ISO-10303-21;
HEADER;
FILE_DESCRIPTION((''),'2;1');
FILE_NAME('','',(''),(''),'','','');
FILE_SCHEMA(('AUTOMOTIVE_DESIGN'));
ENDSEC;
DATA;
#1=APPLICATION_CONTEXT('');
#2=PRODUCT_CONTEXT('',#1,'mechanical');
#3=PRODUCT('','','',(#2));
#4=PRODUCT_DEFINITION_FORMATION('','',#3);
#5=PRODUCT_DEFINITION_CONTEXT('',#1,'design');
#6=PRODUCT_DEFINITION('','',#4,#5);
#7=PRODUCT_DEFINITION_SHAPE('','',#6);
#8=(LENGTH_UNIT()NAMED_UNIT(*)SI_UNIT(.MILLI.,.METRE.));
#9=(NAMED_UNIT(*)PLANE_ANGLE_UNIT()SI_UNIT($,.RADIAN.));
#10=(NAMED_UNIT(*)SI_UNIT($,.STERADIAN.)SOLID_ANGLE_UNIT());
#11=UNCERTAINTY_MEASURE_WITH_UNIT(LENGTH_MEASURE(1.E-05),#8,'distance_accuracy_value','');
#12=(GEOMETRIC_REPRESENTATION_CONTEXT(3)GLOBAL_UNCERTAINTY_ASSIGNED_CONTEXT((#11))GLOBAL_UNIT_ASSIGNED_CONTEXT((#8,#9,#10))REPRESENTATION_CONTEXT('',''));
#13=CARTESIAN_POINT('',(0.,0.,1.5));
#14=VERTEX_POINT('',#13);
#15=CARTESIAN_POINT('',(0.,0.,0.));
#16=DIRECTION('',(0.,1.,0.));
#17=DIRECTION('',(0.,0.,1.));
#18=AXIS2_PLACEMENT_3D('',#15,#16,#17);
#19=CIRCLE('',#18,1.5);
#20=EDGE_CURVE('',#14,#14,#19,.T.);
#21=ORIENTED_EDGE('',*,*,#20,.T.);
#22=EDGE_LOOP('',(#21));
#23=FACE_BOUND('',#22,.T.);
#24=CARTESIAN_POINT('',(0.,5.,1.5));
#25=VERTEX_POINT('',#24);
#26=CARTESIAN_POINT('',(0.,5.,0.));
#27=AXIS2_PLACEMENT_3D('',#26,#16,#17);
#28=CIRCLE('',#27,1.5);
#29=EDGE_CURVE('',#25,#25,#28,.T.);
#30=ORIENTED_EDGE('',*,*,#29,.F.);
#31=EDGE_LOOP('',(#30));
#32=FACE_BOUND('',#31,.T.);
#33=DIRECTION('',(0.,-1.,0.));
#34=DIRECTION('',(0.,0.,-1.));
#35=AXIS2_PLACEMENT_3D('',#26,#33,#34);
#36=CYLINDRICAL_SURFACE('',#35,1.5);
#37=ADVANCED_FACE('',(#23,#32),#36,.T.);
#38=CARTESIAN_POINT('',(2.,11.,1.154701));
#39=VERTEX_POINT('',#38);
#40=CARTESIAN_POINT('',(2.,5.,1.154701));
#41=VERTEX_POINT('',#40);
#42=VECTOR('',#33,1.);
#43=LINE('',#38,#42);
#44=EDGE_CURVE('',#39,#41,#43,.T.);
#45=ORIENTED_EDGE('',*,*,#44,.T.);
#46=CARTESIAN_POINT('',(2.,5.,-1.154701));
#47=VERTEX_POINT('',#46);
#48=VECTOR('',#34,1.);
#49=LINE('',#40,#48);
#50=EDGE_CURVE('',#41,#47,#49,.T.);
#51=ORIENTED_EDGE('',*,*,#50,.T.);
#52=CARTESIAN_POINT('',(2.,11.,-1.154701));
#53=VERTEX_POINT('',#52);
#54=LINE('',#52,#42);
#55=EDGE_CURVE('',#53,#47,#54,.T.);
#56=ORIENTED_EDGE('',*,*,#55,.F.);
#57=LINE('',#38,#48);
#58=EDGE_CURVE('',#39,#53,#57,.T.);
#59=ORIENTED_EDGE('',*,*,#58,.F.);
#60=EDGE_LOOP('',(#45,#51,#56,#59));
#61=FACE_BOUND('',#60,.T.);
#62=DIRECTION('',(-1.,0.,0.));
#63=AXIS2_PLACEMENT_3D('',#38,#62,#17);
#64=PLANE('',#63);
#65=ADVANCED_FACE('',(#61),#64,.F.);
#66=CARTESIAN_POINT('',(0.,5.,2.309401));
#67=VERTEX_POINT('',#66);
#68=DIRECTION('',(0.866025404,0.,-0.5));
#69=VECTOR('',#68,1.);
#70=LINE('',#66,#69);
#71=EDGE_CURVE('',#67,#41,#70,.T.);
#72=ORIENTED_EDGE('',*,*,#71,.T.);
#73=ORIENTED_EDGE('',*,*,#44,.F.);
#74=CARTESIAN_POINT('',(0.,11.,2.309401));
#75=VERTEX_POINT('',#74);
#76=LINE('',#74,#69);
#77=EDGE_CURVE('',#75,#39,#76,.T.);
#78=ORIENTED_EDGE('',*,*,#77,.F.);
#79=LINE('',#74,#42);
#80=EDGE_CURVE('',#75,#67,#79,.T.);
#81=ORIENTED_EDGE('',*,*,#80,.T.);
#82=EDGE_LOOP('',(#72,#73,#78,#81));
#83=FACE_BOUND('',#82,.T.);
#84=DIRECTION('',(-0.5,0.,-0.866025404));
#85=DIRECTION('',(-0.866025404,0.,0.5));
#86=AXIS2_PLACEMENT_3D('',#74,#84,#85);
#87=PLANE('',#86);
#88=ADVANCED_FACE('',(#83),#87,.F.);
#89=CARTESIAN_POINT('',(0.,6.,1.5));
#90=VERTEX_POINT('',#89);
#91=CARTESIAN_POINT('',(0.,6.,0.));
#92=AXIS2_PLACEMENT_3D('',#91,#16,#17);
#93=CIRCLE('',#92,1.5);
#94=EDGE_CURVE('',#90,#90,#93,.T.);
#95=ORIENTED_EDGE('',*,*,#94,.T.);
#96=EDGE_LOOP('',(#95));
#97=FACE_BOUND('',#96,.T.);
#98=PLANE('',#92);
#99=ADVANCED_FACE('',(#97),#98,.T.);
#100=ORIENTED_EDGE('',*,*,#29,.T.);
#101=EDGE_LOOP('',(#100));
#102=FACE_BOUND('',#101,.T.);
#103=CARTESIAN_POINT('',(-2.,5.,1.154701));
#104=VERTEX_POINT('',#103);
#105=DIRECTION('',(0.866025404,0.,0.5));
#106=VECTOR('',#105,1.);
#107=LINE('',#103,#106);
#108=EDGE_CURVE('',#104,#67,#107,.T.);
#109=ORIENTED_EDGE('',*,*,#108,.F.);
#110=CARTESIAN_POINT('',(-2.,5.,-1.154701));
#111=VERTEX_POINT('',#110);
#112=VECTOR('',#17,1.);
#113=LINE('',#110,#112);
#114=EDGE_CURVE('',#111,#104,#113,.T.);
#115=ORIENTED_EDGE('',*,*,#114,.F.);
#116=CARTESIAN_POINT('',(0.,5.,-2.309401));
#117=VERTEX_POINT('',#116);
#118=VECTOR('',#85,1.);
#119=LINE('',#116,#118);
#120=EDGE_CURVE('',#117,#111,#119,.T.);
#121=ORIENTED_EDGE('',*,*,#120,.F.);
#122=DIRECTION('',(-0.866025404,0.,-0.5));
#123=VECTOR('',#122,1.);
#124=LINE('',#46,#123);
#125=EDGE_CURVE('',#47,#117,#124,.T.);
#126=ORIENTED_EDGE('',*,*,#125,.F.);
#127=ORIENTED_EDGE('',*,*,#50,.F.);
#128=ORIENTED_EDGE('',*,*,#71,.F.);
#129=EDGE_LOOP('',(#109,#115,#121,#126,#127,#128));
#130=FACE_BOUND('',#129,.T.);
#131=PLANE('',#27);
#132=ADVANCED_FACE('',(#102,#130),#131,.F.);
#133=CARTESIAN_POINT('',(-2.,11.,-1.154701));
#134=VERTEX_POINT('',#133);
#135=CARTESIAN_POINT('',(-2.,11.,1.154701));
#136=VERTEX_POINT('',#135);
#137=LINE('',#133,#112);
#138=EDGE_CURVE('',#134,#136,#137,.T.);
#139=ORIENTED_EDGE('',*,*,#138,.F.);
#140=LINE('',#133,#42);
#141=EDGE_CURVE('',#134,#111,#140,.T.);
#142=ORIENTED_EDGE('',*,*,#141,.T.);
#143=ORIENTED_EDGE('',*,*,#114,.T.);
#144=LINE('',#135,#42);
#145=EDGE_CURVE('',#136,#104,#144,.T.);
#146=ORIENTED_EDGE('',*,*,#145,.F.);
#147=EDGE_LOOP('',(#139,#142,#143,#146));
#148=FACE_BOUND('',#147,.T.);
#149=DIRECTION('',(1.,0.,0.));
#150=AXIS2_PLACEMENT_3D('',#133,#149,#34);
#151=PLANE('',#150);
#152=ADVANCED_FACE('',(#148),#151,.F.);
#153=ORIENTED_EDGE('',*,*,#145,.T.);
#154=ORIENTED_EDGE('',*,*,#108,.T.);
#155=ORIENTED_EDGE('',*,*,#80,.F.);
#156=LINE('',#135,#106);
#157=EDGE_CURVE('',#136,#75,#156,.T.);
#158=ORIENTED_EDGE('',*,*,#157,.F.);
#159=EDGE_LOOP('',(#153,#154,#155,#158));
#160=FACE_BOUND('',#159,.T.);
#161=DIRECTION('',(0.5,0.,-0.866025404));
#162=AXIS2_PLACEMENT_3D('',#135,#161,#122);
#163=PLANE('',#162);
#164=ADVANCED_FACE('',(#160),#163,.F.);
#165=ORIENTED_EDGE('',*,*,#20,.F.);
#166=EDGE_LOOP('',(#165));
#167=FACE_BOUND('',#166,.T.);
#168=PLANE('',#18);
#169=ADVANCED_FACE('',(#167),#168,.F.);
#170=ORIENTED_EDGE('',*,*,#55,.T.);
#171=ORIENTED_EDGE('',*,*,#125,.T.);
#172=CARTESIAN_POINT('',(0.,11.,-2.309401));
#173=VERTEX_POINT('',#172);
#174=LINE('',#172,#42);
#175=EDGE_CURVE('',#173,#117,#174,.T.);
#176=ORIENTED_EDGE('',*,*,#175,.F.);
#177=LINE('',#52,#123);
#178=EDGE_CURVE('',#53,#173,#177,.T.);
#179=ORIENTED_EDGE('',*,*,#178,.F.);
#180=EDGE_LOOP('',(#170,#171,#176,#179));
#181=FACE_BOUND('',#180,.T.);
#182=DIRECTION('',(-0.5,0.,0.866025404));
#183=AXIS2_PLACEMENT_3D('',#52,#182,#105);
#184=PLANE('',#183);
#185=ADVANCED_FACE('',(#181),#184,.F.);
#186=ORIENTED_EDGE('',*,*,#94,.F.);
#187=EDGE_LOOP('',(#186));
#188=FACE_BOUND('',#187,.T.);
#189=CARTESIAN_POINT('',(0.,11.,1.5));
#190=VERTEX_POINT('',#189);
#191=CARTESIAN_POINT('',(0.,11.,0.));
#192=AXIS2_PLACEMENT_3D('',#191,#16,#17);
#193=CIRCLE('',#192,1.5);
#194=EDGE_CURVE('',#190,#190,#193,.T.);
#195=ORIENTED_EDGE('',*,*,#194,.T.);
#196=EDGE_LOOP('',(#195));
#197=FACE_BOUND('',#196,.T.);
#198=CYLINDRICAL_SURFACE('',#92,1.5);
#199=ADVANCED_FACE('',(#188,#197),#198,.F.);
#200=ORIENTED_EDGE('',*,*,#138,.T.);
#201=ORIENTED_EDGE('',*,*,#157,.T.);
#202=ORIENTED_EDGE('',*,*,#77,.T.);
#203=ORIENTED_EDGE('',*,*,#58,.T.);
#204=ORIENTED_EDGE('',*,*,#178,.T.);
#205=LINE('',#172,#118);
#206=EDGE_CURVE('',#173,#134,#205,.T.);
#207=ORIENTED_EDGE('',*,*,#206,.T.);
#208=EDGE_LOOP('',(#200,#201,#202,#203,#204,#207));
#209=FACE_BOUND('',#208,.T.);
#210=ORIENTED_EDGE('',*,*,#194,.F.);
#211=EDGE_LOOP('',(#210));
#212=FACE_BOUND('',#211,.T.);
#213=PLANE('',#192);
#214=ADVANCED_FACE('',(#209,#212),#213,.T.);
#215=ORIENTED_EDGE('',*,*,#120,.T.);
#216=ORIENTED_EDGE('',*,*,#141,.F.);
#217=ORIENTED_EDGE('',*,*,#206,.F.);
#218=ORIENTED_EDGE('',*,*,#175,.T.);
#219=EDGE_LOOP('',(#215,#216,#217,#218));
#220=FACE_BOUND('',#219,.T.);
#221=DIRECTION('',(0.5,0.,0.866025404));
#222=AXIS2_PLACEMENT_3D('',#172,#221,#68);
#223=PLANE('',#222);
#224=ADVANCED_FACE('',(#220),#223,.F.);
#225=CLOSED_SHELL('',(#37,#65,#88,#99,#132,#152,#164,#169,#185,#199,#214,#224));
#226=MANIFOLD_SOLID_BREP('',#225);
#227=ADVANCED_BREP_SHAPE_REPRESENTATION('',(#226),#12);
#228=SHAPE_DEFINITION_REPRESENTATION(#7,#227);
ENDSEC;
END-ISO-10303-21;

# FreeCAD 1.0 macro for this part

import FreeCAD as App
import Part
import Sketcher

V = App.Vector
Q = App.Units.Quantity

doc = App.newDocument("Part")
body = doc.addObject("PartDesign::Body", "Body")

# Sketch on XZ plane
sketch1 = doc.addObject("Sketcher::SketchObject", "Sketch")
body.addObject(sketch1)
sketch1.AttachmentSupport = (doc.XZ_Plane, [""])
sketch1.MapMode = "FlatFace"
sketch1.addGeometry(Part.Circle(V(0, 0, 0), V(0, 0, 1), 1.5), False)
sketch1.addConstraint(Sketcher.Constraint("Coincident", 0, 3, -1, 1))
sketch1.addConstraint(Sketcher.Constraint("Diameter", 0, 3.0))
pad1 = doc.addObject("PartDesign::Pad", "Pad")
body.addObject(pad1)
pad1.Profile = sketch1
pad1.Length = 5
pad1.Reversed = True

# Sketch on XZ plane
sketch2 = doc.addObject("Sketcher::SketchObject", "Sketch001")
body.addObject(sketch2)
sketch2.AttachmentSupport = (doc.XZ_Plane, [""])
sketch2.MapMode = "FlatFace"
sketch2.AttachmentOffset = App.Placement(V(0, 0, -5), App.Rotation())
sketch2.addGeometry(Part.LineSegment(V(0, -2.3, 0), V(-2, -1.2, 0)), False)
sketch2.addGeometry(Part.LineSegment(V(-2, -1.2, 0), V(-2, 1.2, 0)), False)
sketch2.addGeometry(Part.LineSegment(V(-2, 1.2, 0), V(0, 2.3, 0)), False)
sketch2.addGeometry(Part.LineSegment(V(0, 2.3, 0), V(2, 1.2, 0)), False)
sketch2.addGeometry(Part.LineSegment(V(2, 1.2, 0), V(2, -1.2, 0)), False)
sketch2.addGeometry(Part.LineSegment(V(2, -1.2, 0), V(0, -2.3, 0)), False)
sketch2.addConstraint(Sketcher.Constraint("Coincident", 0, 2, 1, 1))
sketch2.addConstraint(Sketcher.Constraint("Coincident", 1, 2, 2, 1))
sketch2.addConstraint(Sketcher.Constraint("Coincident", 2, 2, 3, 1))
sketch2.addConstraint(Sketcher.Constraint("Coincident", 3, 2, 4, 1))
sketch2.addConstraint(Sketcher.Constraint("Coincident", 4, 2, 5, 1))
sketch2.addConstraint(Sketcher.Constraint("Coincident", 5, 2, 0, 1))
sketch2.addConstraint(Sketcher.Constraint("Vertical", 1))
sketch2.addConstraint(Sketcher.Constraint("Vertical", 4))
sketch2.addConstraint(Sketcher.Constraint("Symmetric", 0, 2, 3, 2, -1, 1))
sketch2.addConstraint(Sketcher.Constraint("Symmetric", 2, 2, 5, 2, -1, 1))
sketch2.addConstraint(Sketcher.Constraint("PointOnObject", 2, 2, -2))
sketch2.addConstraint(Sketcher.Constraint("Parallel", 2, 5))
sketch2.addConstraint(Sketcher.Constraint("Horizontal", 1, 2, 3, 2))
sketch2.addConstraint(Sketcher.Constraint("Angle", 0, Q("150 deg")))
sketch2.addConstraint(Sketcher.Constraint("DistanceX", 0, 2, -1, 1, 2.0))
sketch2.addConstraint(Sketcher.Constraint("DistanceY", 1, 1, 1, 2, 2.309401))
pad2 = doc.addObject("PartDesign::Pad", "Pad001")
body.addObject(pad2)
pad2.Profile = sketch2
pad2.Length = 6
pad2.Reversed = True

# Sketch on XZ plane
sketch3 = doc.addObject("Sketcher::SketchObject", "Sketch002")
body.addObject(sketch3)
sketch3.AttachmentSupport = (doc.XZ_Plane, [""])
sketch3.MapMode = "FlatFace"
sketch3.AttachmentOffset = App.Placement(V(0, 0, -11), App.Rotation())
sketch3.addGeometry(Part.Circle(V(0, 0, 0), V(0, 0, 1), 1.5), False)
sketch3.addConstraint(Sketcher.Constraint("Coincident", 0, 3, -1, 1))
sketch3.addConstraint(Sketcher.Constraint("Diameter", 0, 3.0))
pocket1 = doc.addObject("PartDesign::Pocket", "Pocket")
body.addObject(pocket1)
pocket1.Profile = sketch3
pocket1.Length = 5
pocket1.Reversed = True

doc.recompute()
